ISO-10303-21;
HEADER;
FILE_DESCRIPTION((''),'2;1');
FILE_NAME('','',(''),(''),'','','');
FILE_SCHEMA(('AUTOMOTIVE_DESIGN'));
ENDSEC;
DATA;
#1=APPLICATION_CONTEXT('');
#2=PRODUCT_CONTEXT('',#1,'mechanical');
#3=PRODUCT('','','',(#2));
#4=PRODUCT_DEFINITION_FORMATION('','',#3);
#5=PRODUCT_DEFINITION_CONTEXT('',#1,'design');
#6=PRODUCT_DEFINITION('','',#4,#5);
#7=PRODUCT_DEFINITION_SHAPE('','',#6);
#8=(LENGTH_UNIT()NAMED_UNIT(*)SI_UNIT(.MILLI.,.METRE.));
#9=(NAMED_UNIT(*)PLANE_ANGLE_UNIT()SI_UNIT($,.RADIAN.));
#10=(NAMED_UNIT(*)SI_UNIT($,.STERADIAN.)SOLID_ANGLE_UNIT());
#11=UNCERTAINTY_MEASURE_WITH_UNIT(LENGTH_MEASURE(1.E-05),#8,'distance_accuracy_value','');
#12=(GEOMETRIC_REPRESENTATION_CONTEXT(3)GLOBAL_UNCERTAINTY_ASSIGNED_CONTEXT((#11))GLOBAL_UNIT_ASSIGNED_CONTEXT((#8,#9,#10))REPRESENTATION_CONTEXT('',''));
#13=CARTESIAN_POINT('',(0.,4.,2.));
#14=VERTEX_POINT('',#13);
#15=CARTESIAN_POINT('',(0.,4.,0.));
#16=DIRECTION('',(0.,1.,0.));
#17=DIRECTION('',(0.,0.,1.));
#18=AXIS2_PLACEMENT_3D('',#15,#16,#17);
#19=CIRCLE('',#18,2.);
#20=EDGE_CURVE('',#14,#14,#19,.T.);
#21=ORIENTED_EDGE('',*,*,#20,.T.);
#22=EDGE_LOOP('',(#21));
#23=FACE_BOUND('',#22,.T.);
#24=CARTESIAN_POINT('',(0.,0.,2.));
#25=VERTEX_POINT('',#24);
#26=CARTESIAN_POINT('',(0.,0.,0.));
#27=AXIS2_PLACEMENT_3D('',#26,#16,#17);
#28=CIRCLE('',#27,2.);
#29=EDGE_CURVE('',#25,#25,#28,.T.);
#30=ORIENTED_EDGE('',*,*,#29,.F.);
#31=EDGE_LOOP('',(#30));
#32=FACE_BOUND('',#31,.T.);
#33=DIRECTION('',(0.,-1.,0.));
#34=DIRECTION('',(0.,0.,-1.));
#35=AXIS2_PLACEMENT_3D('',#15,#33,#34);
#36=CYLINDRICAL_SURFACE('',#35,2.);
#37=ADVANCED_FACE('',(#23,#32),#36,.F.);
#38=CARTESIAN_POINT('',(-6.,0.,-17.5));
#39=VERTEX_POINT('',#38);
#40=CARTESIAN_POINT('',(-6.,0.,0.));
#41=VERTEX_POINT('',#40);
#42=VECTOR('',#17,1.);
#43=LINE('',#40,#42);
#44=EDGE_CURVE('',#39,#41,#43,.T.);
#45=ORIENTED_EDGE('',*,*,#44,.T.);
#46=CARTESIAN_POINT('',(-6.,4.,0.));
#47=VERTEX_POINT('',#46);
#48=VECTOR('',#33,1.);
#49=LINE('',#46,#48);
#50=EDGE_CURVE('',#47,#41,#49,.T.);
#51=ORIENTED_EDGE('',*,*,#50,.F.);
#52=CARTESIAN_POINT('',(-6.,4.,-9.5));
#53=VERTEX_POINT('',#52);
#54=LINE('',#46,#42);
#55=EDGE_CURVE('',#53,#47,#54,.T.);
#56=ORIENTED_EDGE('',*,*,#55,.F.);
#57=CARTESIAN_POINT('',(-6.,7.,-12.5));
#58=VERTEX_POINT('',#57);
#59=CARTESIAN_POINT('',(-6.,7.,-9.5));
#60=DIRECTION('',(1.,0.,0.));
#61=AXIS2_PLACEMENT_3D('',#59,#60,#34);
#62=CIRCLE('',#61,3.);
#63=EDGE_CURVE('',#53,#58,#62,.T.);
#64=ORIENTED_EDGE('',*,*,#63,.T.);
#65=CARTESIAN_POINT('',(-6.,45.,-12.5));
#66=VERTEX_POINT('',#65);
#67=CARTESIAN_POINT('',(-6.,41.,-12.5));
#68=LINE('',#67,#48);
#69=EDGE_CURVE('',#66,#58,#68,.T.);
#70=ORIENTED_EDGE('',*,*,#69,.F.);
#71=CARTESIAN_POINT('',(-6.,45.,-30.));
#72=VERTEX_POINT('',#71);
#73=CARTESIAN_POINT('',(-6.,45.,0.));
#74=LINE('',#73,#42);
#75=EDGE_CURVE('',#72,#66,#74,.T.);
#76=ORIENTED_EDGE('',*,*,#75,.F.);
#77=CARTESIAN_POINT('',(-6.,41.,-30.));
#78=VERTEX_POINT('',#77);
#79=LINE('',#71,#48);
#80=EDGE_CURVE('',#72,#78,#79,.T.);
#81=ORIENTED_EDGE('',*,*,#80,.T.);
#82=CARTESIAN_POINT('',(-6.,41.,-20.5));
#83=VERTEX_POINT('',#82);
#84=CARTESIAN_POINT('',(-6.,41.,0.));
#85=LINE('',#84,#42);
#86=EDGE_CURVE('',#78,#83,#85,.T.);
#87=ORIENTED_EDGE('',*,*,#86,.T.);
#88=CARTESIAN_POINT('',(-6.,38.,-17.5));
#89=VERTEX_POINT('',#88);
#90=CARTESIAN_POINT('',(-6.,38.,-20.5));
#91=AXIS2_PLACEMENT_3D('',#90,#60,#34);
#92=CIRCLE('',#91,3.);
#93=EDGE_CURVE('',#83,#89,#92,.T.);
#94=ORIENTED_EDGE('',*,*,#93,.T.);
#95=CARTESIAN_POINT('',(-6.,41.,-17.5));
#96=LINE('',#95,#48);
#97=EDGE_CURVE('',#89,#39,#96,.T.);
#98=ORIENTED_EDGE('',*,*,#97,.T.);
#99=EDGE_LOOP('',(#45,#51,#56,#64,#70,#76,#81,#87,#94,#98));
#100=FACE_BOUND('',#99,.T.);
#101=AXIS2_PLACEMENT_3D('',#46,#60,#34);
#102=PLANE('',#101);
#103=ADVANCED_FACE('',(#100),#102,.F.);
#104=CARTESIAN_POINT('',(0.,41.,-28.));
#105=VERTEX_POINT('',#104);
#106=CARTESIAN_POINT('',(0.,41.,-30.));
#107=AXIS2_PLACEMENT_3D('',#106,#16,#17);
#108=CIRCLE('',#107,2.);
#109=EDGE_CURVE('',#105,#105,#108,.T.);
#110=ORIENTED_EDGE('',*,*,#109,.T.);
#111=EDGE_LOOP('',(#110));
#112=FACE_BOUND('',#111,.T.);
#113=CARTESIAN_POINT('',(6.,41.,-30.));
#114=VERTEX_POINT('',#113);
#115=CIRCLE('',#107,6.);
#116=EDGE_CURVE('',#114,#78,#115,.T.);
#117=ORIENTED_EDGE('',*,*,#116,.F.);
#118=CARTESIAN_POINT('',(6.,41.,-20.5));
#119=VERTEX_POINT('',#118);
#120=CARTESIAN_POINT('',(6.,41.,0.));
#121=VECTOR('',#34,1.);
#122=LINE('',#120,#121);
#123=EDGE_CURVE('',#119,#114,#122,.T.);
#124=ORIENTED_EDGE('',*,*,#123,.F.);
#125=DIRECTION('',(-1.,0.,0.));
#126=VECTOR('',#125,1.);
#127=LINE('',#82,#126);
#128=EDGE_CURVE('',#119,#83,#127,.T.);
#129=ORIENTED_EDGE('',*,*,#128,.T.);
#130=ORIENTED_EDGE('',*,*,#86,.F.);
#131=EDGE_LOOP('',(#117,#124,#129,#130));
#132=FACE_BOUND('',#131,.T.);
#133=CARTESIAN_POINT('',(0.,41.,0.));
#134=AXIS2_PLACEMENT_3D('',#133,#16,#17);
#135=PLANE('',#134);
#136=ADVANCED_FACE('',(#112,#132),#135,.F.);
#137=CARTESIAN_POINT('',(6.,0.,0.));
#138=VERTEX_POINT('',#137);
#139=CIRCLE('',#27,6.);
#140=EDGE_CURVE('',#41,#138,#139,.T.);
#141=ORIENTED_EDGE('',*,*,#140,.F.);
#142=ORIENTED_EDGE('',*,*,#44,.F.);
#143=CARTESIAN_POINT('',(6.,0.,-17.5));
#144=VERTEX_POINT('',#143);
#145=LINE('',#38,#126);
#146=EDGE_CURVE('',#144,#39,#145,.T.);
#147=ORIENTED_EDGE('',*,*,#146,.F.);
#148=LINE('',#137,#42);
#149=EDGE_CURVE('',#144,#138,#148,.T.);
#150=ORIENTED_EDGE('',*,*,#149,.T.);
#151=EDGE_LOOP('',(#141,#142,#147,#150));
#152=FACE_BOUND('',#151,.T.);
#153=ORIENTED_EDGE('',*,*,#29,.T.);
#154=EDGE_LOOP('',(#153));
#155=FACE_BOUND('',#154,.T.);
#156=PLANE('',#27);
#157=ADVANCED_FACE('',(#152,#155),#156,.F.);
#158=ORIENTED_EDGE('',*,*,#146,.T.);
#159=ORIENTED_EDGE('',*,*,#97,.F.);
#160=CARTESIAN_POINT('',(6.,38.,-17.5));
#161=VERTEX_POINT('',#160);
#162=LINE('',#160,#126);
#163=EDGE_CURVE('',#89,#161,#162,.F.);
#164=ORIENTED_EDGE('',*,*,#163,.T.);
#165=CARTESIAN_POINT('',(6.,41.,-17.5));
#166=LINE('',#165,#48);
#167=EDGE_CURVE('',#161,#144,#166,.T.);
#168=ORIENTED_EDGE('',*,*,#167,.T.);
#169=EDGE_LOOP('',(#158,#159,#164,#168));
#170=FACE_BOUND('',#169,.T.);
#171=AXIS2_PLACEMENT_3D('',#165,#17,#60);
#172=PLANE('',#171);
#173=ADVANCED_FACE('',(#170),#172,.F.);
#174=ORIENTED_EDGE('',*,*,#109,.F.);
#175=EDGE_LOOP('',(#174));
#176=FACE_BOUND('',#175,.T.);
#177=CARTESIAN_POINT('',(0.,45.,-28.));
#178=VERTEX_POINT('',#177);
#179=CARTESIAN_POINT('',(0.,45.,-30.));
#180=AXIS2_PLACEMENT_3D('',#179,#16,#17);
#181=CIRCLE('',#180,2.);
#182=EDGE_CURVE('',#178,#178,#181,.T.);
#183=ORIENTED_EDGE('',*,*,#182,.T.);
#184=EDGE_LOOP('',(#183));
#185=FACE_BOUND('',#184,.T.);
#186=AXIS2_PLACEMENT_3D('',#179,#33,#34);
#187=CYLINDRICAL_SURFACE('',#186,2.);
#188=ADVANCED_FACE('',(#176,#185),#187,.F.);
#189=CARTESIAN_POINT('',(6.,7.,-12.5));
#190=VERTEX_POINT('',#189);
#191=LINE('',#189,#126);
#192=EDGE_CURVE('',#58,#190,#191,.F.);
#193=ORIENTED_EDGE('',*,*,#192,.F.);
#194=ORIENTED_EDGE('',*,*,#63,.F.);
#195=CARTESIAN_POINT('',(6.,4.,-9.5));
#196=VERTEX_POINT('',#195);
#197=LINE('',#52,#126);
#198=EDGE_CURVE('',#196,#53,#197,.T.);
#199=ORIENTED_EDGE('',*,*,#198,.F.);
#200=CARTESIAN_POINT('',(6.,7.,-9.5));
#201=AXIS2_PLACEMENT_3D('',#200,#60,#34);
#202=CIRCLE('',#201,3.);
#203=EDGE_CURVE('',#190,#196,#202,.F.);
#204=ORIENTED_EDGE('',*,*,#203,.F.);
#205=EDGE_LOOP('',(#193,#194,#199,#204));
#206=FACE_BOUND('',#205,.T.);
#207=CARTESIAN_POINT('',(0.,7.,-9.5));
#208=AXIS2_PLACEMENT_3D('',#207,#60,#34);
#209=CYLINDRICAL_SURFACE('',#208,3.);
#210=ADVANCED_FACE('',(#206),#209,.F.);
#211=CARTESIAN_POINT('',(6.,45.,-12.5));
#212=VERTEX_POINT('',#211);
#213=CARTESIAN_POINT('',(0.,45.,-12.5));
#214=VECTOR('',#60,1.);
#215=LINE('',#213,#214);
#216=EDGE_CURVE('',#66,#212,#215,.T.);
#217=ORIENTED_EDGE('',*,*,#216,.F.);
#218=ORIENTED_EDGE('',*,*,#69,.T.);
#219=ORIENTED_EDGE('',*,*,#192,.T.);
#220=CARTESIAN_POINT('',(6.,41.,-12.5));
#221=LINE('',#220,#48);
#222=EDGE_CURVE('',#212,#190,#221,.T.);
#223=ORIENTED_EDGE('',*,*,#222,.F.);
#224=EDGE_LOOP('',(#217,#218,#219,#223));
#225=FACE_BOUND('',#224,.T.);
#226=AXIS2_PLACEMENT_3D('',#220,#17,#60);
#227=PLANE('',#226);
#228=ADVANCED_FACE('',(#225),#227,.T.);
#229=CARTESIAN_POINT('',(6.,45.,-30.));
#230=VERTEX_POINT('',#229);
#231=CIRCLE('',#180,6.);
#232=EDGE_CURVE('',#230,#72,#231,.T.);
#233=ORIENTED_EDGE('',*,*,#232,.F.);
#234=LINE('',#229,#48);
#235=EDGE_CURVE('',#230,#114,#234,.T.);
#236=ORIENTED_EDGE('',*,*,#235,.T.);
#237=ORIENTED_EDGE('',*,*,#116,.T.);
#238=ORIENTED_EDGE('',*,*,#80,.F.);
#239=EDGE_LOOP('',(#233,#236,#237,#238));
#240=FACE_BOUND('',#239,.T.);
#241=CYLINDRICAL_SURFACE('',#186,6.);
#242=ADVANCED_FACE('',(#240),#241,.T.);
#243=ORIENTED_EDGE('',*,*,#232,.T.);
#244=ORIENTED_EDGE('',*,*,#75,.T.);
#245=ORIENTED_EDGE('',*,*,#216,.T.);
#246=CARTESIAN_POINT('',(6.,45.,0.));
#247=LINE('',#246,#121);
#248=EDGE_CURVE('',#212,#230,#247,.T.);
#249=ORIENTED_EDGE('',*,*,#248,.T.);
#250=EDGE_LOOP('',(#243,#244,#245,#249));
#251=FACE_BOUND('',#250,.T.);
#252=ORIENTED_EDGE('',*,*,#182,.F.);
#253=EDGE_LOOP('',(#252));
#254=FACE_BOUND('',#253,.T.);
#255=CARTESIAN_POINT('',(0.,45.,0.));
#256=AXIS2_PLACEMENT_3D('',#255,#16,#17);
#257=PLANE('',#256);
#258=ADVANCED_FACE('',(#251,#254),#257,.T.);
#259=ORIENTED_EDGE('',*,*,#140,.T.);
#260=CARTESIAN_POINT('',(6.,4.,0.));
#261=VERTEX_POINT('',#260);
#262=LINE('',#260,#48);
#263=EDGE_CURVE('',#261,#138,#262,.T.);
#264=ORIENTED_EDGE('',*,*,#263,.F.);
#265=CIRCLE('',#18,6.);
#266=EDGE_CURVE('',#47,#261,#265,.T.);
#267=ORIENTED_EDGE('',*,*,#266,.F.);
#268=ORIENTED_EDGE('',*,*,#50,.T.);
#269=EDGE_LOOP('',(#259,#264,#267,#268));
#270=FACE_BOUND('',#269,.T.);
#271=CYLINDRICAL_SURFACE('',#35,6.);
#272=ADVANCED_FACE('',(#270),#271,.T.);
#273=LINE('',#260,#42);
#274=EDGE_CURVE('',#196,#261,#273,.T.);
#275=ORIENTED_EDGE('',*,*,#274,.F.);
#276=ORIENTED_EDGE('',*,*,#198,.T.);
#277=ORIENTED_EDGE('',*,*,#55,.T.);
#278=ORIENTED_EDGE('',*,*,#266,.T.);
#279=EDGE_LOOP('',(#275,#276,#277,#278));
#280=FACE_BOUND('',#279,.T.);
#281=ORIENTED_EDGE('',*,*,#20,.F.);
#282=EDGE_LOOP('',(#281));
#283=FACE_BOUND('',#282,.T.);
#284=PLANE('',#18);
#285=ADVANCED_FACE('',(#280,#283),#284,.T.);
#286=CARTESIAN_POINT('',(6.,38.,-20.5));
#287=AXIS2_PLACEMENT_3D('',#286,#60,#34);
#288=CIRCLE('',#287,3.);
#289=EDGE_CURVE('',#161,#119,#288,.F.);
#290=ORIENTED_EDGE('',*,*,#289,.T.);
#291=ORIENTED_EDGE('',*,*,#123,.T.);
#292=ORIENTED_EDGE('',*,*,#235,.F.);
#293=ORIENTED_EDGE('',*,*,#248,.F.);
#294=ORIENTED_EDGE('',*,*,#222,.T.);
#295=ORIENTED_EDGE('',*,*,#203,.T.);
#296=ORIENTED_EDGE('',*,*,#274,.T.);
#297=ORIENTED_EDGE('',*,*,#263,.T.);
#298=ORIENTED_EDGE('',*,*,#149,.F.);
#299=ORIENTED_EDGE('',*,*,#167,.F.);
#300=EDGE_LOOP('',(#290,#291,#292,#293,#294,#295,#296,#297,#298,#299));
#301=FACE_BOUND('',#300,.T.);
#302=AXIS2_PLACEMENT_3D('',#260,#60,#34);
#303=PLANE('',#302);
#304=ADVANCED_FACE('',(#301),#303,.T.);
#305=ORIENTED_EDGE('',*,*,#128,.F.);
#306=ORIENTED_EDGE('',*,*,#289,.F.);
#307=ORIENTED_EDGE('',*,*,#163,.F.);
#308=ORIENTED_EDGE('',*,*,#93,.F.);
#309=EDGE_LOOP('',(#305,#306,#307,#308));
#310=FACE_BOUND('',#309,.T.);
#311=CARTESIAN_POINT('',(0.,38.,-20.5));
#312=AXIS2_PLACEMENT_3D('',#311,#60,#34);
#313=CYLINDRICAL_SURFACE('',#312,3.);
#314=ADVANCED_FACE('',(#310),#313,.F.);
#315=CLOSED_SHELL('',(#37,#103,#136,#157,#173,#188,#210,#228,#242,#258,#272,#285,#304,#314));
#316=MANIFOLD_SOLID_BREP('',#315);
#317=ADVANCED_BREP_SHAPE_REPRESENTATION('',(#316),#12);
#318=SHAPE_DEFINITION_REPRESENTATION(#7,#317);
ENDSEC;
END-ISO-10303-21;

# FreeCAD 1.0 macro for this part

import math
import FreeCAD as App
import Part
import Sketcher
from FreeCAD import Vector


def edges_at(feature, points):
    """Names of the edges that pass closest to the given points."""
    edges = feature.Shape.Edges
    near = lambda p: min(range(len(edges)), key=lambda i: edges[i].distToShape(Part.Vertex(*p))[0])
    return sorted({f"Edge{near(p) + 1}" for p in points})


def add_polygon(sketch, points):
    """Adds a closed chain of lines whose ends are joined by coincident constraints."""
    first, n = sketch.GeometryCount, len(points)
    for a, b in zip(points, points[1:] + points[:1]):
        sketch.addGeometry(Part.LineSegment(App.Vector(*a, 0), App.Vector(*b, 0)), False)
    for i in range(n):
        sketch.addConstraint(Sketcher.Constraint("Coincident", first + i, 2, first + (i + 1) % n, 1))

doc = App.newDocument("Part")
body = doc.addObject("PartDesign::Body", "Body")

# Sketch on XZ plane
sketch1 = doc.addObject("Sketcher::SketchObject", "Sketch")
body.addObject(sketch1)
sketch1.AttachmentSupport = (doc.XZ_Plane, [""])
sketch1.MapMode = "FlatFace"
sketch1.addGeometry([
    Part.ArcOfCircle(Part.Circle(Vector(0, -30, 0), Vector(0, 0, 1), 6), math.radians(180), math.radians(360)),  # 0
    Part.LineSegment(Vector(-6, -30, 0), Vector(-6, 0, 0)),  # 1
    Part.ArcOfCircle(Part.Circle(Vector(0, 0, 0), Vector(0, 0, 1), 6), math.radians(0), math.radians(180)),  # 2
    Part.LineSegment(Vector(6, 0, 0), Vector(6, -30, 0)),  # 3
    Part.Circle(Vector(0, 0, 0), Vector(0, 0, 1), 2),  # 4
    Part.Circle(Vector(0, -30, 0), Vector(0, 0, 1), 2),  # 5
], False)
sketch1.addConstraint([
    Sketcher.Constraint("Tangent", 0, 1, 1, 1),
    Sketcher.Constraint("Tangent", 1, 2, 2, 2),
    Sketcher.Constraint("Tangent", 2, 1, 3, 1),
    Sketcher.Constraint("Tangent", 3, 2, 0, 2),
    Sketcher.Constraint("Vertical", 1),
    Sketcher.Constraint("Vertical", 3),
    Sketcher.Constraint("Coincident", 2, 3, -1, 1),
    Sketcher.Constraint("Coincident", 4, 3, -1, 1),
    Sketcher.Constraint("Coincident", 5, 3, 0, 3),
    Sketcher.Constraint("Equal", 4, 5),
    Sketcher.Constraint("Diameter", 4, 4.0),
    Sketcher.Constraint("Radius", 0, 6.0),
    Sketcher.Constraint("DistanceY", 1, 1, 1, 2, 30.0),
])
pad1 = doc.addObject("PartDesign::Pad", "Pad")
body.addObject(pad1)
pad1.Profile = sketch1
pad1.Length = 4
pad1.Reversed = True

# Sketch on XZ plane
sketch2 = doc.addObject("Sketcher::SketchObject", "Sketch001")
body.addObject(sketch2)
sketch2.AttachmentSupport = (doc.XZ_Plane, [""])
sketch2.MapMode = "FlatFace"
sketch2.AttachmentOffset = App.Placement(Vector(0, 0, -4), App.Rotation())
add_polygon(sketch2, [(-6, -17.5), (-6, -12.5), (6, -12.5), (6, -17.5)])  # lines 0-3
sketch2.addConstraint([
    Sketcher.Constraint("Vertical", 0),
    Sketcher.Constraint("Horizontal", 1),
    Sketcher.Constraint("Vertical", 2),
    Sketcher.Constraint("Horizontal", 3),
    Sketcher.Constraint("DistanceX", 1, 1, 1, 2, 12.0),
    Sketcher.Constraint("DistanceY", 0, 1, 0, 2, 5.0),
    Sketcher.Constraint("DistanceX", 0, 2, -1, 1, 6.0),
    Sketcher.Constraint("DistanceY", 0, 2, -1, 1, 12.5),
])
pad2 = doc.addObject("PartDesign::Pad", "Pad001")
body.addObject(pad2)
pad2.Profile = sketch2
pad2.Length = 37
pad2.Reversed = True

# Sketch on XZ plane
sketch3 = doc.addObject("Sketcher::SketchObject", "Sketch002")
body.addObject(sketch3)
sketch3.AttachmentSupport = (doc.XZ_Plane, [""])
sketch3.MapMode = "FlatFace"
sketch3.AttachmentOffset = App.Placement(Vector(0, 0, -41), App.Rotation())
sketch3.addGeometry([
    Part.ArcOfCircle(Part.Circle(Vector(0, -30, 0), Vector(0, 0, 1), 6), math.radians(180), math.radians(360)),  # 0
    Part.LineSegment(Vector(-6, -30, 0), Vector(-6, -12.5, 0)),  # 1
    Part.LineSegment(Vector(-6, -12.5, 0), Vector(6, -12.5, 0)),  # 2
    Part.LineSegment(Vector(6, -12.5, 0), Vector(6, -30, 0)),  # 3
    Part.Circle(Vector(0, -30, 0), Vector(0, 0, 1), 2),  # 4
], False)
sketch3.addConstraint([
    Sketcher.Constraint("Tangent", 0, 1, 1, 1),
    Sketcher.Constraint("Coincident", 1, 2, 2, 1),
    Sketcher.Constraint("Coincident", 2, 2, 3, 1),
    Sketcher.Constraint("Tangent", 3, 2, 0, 2),
    Sketcher.Constraint("Vertical", 1),
    Sketcher.Constraint("Horizontal", 2),
    Sketcher.Constraint("Vertical", 3),
    Sketcher.Constraint("Coincident", 4, 3, 0, 3),
    Sketcher.Constraint("PointOnObject", 0, 3, -2),
    Sketcher.Constraint("Diameter", 4, 4.0),
    Sketcher.Constraint("Radius", 0, 6.0),
    Sketcher.Constraint("DistanceY", 1, 1, 1, 2, 17.5),
    Sketcher.Constraint("DistanceY", 0, 3, -1, 1, 30.0),
])
pad3 = doc.addObject("PartDesign::Pad", "Pad002")
body.addObject(pad3)
pad3.Profile = sketch3
pad3.Length = 4
pad3.Reversed = True
doc.recompute()

fillet = doc.addObject("PartDesign::Fillet", "Fillet")
body.addObject(fillet)
fillet.Base = (pad3, edges_at(pad3, [(0, 4, -17.5), (0, 41, -17.5), (0, 4, -12.5)]))
fillet.Radius = 3

# Sketch on XZ plane
sketch4 = doc.addObject("Sketcher::SketchObject", "Sketch003")
body.addObject(sketch4)
sketch4.AttachmentSupport = (doc.XZ_Plane, [""])
sketch4.MapMode = "FlatFace"
sketch4.AttachmentOffset = App.Placement(Vector(0, 0, -4), App.Rotation())
add_polygon(sketch4, [(-6, -36.920746), (-6, -17.5), (6, -17.5), (6, -36.920746)])  # lines 0-3
sketch4.addConstraint([
    Sketcher.Constraint("Vertical", 0),
    Sketcher.Constraint("Horizontal", 1),
    Sketcher.Constraint("Vertical", 2),
    Sketcher.Constraint("Horizontal", 3),
    Sketcher.Constraint("DistanceX", 1, 1, 1, 2, 12.0),
    Sketcher.Constraint("DistanceX", 0, 2, -1, 1, 6.0),
    Sketcher.Constraint("DistanceY", 0, 2, -1, 1, 17.5),
    Sketcher.Constraint("DistanceY", 0, 1, 0, 2, 19.420746),
])
pocket1 = doc.addObject("PartDesign::Pocket", "Pocket")
body.addObject(pocket1)
pocket1.Profile = sketch4
pocket1.Type = "UpToFirst"
pocket1.Reversed = True

# Sketch on XZ plane
sketch5 = doc.addObject("Sketcher::SketchObject", "Sketch004")
body.addObject(sketch5)
sketch5.AttachmentSupport = (doc.XZ_Plane, [""])
sketch5.MapMode = "FlatFace"
sketch5.AttachmentOffset = App.Placement(Vector(0, 0, -4), App.Rotation())
add_polygon(sketch5, [(-6, -36.920746), (-6, -17.5), (6, -17.5), (6, -36.920746)])  # lines 0-3
sketch5.addConstraint([
    Sketcher.Constraint("Vertical", 0),
    Sketcher.Constraint("Horizontal", 1),
    Sketcher.Constraint("Vertical", 2),
    Sketcher.Constraint("Horizontal", 3),
    Sketcher.Constraint("DistanceX", 1, 1, 1, 2, 12.0),
    Sketcher.Constraint("DistanceX", 0, 2, -1, 1, 6.0),
    Sketcher.Constraint("DistanceY", 0, 2, -1, 1, 17.5),
    Sketcher.Constraint("DistanceY", 0, 1, 0, 2, 19.420746),
])
pocket2 = doc.addObject("PartDesign::Pocket", "Pocket001")
body.addObject(pocket2)
pocket2.Profile = sketch5
pocket2.Length = 10

doc.recompute()
